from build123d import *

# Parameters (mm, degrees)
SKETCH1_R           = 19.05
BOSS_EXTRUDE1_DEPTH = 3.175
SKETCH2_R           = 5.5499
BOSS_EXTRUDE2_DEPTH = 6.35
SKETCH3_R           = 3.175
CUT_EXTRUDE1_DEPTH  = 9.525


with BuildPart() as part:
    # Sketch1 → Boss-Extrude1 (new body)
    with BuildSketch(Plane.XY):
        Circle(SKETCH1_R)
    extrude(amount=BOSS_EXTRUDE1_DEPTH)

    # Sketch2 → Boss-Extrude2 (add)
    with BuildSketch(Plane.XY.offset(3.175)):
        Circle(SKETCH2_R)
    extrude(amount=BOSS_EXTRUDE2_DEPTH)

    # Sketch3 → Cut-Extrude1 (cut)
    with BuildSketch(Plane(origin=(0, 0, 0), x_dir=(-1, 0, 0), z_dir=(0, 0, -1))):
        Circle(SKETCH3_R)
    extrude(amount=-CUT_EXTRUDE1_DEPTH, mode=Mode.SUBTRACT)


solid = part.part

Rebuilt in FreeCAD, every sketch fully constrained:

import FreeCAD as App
import Part
import Sketcher
Q = App.Units.Quantity

doc = App.newDocument("Part")
params = doc.addObject("Spreadsheet::Sheet", "Params")
for row, (alias, value) in enumerate([
    ("sketch1_diameter", "1.5 in"),
    ("pad1_length", "0.125 in"),
    ("sketch2_diameter", "0.437 in"),
    ("pad2_length", "0.25 in"),
    ("sketch3_diameter", "0.25 in"),
    ("pocket1_length", "0.375 in"),
], start=1):
    params.set(f"A{row}", alias)
    params.set(f"B{row}", "=" + value)
    params.setAlias(f"B{row}", alias)

body = doc.addObject("PartDesign::Body", "Body")

# Sketch on XY plane
sketch1 = body.newObject("Sketcher::SketchObject", "Sketch")
sketch1.AttachmentSupport = (doc.getObject("XY_Plane"), [""])
sketch1.MapMode = "FlatFace"
sketch1.addGeometry(Part.Circle(App.Vector(0, 0, 0), App.Vector(0, 0, 1), 19), False)
sketch1.addConstraint([
    Sketcher.Constraint("Coincident", 0, 3, -1, 1),
    Sketcher.Constraint("Diameter", 0, Q("1.5 in")),
])
sketch1.setExpression("Constraints[1]", "Params.sketch1_diameter")
pad1 = body.newObject("PartDesign::Pad", "Pad")
pad1.Profile = sketch1
pad1.setExpression("Length", "Params.pad1_length")

# Sketch on XY plane
sketch2 = body.newObject("Sketcher::SketchObject", "Sketch001")
sketch2.AttachmentSupport = (doc.getObject("XY_Plane"), [""])
sketch2.MapMode = "FlatFace"
sketch2.AttachmentOffset = App.Placement(App.Vector(0, 0, 0.125 * 25.4), App.Rotation())
sketch2.addGeometry(Part.Circle(App.Vector(0, 0, 0), App.Vector(0, 0, 1), 6), False)
sketch2.addConstraint([
    Sketcher.Constraint("Coincident", 0, 3, -1, 1),
    Sketcher.Constraint("Diameter", 0, Q("0.437 in")),
])
sketch2.setExpression("Constraints[1]", "Params.sketch2_diameter")
pad2 = body.newObject("PartDesign::Pad", "Pad001")
pad2.Profile = sketch2
pad2.setExpression("Length", "Params.pad2_length")

# Sketch on XY plane
sketch3 = body.newObject("Sketcher::SketchObject", "Sketch002")
sketch3.AttachmentSupport = (doc.getObject("XY_Plane"), [""])
sketch3.MapMode = "FlatFace"
sketch3.addGeometry(Part.Circle(App.Vector(0, 0, 0), App.Vector(0, 0, 1), 3.2), False)
sketch3.addConstraint([
    Sketcher.Constraint("Coincident", 0, 3, -1, 1),
    Sketcher.Constraint("Diameter", 0, Q("0.25 in")),
])
sketch3.setExpression("Constraints[1]", "Params.sketch3_diameter")
pocket1 = body.newObject("PartDesign::Pocket", "Pocket")
pocket1.Profile = sketch3
pocket1.setExpression("Length", "Params.pocket1_length")
pocket1.Reversed = True

doc.recompute()
